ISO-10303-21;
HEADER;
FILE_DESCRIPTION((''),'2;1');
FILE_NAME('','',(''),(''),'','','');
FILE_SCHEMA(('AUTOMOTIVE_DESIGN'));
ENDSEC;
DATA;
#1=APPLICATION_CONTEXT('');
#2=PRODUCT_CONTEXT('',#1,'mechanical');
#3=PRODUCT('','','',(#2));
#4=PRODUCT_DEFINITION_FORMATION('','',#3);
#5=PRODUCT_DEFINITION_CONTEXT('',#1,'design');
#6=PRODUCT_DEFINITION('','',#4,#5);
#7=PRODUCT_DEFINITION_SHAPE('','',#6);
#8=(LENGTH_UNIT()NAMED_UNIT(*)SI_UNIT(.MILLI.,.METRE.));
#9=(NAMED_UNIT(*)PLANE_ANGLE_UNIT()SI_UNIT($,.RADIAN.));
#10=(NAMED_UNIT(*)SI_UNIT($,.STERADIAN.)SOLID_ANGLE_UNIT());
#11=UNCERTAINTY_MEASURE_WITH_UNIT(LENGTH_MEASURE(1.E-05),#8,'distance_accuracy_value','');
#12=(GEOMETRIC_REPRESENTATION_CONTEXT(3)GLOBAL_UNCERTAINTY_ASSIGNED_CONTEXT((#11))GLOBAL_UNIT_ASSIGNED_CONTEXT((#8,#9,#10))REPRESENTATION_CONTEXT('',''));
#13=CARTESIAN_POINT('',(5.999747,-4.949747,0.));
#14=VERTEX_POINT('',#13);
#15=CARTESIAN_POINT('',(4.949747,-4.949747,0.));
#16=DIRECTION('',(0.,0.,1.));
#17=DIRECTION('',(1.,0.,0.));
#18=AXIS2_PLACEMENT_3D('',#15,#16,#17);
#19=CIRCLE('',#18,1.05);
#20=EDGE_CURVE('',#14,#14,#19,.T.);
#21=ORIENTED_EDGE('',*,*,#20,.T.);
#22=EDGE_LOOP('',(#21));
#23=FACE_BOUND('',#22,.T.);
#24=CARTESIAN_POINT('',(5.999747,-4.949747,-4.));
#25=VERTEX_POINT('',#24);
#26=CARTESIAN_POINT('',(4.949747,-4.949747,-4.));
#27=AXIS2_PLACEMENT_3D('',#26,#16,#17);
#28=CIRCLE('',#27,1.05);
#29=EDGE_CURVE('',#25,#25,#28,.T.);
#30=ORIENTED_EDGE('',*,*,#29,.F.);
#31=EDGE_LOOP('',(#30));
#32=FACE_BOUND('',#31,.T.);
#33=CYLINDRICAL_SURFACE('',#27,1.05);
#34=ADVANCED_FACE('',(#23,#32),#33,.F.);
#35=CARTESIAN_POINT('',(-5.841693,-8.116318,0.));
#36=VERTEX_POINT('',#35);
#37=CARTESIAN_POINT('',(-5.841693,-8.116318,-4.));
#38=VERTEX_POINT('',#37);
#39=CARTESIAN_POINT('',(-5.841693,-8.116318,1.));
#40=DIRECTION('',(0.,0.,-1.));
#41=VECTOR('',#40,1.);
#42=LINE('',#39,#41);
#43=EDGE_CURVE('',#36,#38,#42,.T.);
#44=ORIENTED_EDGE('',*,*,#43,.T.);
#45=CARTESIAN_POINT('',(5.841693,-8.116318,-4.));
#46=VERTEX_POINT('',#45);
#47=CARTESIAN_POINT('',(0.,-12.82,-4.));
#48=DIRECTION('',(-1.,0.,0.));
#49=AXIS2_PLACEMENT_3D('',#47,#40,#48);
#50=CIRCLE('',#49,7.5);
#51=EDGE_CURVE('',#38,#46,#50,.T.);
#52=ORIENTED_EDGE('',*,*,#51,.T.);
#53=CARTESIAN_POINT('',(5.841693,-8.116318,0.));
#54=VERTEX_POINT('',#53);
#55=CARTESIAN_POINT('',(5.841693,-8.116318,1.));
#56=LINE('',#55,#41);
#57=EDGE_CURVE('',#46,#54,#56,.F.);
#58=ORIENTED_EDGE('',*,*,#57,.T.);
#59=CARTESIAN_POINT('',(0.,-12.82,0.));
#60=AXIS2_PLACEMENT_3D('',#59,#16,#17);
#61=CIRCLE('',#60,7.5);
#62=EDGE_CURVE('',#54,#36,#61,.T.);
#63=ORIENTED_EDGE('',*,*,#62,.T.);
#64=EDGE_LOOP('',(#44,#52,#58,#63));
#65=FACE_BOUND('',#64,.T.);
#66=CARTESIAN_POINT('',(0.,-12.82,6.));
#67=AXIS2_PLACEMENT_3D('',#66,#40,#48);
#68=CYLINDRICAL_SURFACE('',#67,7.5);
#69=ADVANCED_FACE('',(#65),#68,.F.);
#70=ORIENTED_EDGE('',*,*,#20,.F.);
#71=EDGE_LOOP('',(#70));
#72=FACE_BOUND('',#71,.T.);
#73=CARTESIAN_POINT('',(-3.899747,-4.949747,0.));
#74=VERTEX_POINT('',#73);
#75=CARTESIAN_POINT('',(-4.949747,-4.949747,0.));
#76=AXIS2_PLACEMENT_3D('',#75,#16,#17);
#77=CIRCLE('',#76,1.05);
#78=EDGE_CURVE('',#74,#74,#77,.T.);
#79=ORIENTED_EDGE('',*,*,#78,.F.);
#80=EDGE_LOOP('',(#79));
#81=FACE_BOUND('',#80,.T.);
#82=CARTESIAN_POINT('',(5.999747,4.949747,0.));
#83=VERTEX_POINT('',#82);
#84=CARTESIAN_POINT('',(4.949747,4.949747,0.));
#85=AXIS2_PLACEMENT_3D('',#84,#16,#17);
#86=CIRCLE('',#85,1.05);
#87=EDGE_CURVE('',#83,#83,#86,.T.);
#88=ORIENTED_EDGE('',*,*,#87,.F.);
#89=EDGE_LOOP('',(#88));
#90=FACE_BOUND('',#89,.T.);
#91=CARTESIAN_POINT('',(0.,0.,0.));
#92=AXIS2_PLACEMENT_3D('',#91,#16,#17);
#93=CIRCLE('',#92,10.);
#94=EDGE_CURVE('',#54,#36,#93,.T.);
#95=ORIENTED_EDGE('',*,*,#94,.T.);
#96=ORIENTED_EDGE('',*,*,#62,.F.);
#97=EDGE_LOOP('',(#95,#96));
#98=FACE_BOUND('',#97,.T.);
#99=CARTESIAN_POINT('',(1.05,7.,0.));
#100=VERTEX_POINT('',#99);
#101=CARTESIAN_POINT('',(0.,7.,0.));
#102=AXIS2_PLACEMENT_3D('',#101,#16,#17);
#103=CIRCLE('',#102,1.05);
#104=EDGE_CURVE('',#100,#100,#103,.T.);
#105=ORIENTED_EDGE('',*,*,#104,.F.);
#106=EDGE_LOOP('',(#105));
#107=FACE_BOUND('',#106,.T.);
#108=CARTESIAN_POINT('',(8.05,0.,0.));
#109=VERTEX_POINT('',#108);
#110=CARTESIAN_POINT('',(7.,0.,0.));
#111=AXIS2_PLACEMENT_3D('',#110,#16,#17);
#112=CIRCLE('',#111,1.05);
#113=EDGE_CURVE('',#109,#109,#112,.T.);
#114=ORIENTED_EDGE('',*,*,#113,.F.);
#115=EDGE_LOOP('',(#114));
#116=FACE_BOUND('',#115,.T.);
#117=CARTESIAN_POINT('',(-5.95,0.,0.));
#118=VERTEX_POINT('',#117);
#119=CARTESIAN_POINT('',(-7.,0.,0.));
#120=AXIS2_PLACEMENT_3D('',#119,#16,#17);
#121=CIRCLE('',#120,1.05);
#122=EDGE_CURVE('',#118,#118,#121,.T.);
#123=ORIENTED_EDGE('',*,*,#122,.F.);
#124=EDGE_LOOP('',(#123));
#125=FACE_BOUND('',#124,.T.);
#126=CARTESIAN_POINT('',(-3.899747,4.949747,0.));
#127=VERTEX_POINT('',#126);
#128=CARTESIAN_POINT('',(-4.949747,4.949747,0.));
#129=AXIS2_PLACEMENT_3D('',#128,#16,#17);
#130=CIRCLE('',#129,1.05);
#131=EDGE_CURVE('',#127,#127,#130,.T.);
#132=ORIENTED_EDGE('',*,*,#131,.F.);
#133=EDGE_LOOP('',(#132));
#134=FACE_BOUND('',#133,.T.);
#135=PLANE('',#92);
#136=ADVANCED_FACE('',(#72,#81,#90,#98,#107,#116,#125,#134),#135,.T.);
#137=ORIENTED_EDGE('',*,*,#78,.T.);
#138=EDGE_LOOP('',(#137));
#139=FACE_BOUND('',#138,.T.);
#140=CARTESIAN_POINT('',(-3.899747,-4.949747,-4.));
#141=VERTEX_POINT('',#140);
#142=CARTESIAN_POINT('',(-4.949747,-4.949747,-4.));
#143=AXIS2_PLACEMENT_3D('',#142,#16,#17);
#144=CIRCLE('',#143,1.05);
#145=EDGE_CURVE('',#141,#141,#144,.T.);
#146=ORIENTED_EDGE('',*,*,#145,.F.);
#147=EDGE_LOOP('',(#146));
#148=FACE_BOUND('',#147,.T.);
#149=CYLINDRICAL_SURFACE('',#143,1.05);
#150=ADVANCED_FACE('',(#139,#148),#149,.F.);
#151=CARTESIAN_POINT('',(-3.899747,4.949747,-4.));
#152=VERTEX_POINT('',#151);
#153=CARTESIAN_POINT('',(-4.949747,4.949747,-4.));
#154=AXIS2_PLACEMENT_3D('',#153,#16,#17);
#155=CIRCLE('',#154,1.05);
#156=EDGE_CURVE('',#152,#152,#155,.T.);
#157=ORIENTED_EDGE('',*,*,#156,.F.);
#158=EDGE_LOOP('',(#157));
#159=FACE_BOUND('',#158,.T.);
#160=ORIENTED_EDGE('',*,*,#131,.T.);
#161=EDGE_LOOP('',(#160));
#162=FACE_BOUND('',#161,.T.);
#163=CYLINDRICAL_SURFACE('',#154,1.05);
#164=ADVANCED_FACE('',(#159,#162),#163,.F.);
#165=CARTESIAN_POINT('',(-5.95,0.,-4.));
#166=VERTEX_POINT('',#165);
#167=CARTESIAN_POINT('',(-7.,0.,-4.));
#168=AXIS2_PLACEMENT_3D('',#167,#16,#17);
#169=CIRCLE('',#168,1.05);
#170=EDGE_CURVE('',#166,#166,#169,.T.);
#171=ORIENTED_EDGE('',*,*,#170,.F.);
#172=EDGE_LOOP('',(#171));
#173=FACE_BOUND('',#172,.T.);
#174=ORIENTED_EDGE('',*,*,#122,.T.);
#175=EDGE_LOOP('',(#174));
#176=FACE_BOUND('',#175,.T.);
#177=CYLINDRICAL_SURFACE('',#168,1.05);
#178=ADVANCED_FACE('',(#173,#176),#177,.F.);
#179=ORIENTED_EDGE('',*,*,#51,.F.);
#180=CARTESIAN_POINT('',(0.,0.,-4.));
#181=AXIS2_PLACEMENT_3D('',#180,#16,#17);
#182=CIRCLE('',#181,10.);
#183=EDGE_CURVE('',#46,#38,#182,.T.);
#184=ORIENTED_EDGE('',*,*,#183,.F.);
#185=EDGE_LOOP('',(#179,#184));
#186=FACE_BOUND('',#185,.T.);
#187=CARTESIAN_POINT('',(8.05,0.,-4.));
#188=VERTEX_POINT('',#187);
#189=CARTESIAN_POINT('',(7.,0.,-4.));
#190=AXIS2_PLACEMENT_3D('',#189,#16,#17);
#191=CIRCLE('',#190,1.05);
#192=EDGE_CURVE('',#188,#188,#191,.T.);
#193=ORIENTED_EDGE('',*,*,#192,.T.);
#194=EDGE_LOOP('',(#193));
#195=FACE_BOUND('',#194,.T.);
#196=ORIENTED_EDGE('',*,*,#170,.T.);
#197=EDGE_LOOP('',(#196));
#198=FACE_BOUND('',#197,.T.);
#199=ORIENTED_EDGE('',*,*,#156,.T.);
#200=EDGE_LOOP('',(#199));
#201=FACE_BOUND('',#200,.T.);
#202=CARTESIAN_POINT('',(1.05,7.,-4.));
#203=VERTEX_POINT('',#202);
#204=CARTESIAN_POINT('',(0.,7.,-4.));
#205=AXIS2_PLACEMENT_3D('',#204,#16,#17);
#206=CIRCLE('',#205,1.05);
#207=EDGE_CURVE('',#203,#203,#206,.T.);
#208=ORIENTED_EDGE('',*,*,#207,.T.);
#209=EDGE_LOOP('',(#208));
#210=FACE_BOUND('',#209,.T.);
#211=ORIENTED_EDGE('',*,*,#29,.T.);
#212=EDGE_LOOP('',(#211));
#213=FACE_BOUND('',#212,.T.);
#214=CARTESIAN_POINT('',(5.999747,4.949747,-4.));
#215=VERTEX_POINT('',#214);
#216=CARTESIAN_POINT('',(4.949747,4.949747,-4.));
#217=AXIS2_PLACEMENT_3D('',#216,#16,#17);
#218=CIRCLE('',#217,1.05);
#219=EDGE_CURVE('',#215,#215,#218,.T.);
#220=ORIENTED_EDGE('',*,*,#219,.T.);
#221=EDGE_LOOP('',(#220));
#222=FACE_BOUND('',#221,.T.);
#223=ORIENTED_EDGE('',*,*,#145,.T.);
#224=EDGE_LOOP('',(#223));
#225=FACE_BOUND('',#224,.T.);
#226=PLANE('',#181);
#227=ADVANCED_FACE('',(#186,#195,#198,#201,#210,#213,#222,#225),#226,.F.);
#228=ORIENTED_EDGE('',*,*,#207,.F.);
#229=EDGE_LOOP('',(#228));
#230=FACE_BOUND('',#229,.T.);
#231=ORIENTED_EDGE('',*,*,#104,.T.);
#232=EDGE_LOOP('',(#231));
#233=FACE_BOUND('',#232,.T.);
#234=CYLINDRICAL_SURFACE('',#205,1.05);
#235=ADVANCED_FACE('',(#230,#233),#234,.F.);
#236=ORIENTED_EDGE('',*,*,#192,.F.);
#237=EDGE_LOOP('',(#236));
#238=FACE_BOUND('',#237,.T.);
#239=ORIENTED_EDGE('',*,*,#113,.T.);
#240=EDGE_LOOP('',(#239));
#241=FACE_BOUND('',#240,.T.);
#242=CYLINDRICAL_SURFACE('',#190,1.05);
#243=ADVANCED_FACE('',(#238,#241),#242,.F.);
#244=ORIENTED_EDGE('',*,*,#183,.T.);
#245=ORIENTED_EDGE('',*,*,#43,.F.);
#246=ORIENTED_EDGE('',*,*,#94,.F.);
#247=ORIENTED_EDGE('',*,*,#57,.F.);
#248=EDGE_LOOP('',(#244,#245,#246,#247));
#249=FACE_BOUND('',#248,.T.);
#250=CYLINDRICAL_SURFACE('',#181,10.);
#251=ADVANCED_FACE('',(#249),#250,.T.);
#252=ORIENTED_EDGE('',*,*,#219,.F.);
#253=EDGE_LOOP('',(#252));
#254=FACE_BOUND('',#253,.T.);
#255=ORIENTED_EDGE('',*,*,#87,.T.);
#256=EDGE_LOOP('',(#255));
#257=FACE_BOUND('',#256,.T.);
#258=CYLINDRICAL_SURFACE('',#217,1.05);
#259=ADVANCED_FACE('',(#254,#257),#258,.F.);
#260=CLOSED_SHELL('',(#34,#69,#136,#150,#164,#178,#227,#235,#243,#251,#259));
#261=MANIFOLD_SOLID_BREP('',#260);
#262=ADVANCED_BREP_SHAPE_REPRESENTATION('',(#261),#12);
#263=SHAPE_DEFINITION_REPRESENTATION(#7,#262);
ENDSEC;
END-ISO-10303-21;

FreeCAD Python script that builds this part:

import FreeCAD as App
import Part
import Sketcher
from FreeCAD import Vector

doc = App.newDocument("Part")
body = doc.addObject("PartDesign::Body", "Body")

# Sketch on XY plane
sketch1 = body.newObject("Sketcher::SketchObject", "Sketch")
sketch1.AttachmentSupport = (doc.getObject("XY_Plane"), [""])
sketch1.MapMode = "FlatFace"
sketch1.addGeometry([
    Part.Circle(Vector(0, 0, 0), Vector(0, 0, 1), 10),  # 0
    Part.Circle(Vector(-4.9, -4.9, 0), Vector(0, 0, 1), 1.1),  # 1
    Part.Circle(Vector(0, -7, 0), Vector(0, 0, 1), 1.1),  # 2
    Part.Circle(Vector(4.9, -4.9, 0), Vector(0, 0, 1), 1.1),  # 3
    Part.Circle(Vector(-7, 0, 0), Vector(0, 0, 1), 1.1),  # 4
    Part.Circle(Vector(0, 0, 0), Vector(0, 0, 1), 4),  # 5
    Part.Circle(Vector(-4.9, 4.9, 0), Vector(0, 0, 1), 1.1),  # 6
    Part.Circle(Vector(0, 7, 0), Vector(0, 0, 1), 1.1),  # 7
    Part.Circle(Vector(7, 0, 0), Vector(0, 0, 1), 1.1),  # 8
    Part.Circle(Vector(4.9, 4.9, 0), Vector(0, 0, 1), 1.1),  # 9
], False)
sketch1.addConstraint([
    Sketcher.Constraint("Coincident", 0, 3, -1, 1),
    Sketcher.Constraint("Coincident", 5, 3, -1, 1),
    Sketcher.Constraint("Equal", 1, 2),
    Sketcher.Constraint("Equal", 2, 3),
    Sketcher.Constraint("Equal", 3, 4),
    Sketcher.Constraint("Equal", 4, 6),
    Sketcher.Constraint("Equal", 6, 7),
    Sketcher.Constraint("Equal", 7, 8),
    Sketcher.Constraint("Equal", 8, 9),
    Sketcher.Constraint("Symmetric", 3, 3, 6, 3, -1, 1),
    Sketcher.Constraint("Symmetric", 2, 3, 7, 3, -1, 1),
    Sketcher.Constraint("Symmetric", 4, 3, 8, 3, -1, 1),
    Sketcher.Constraint("Symmetric", 1, 3, 9, 3, -1, 1),
    Sketcher.Constraint("Symmetric", 1, 3, 3, 3, -2),
    Sketcher.Constraint("PointOnObject", 2, 3, -2),
    Sketcher.Constraint("PointOnObject", 4, 3, -1),
    Sketcher.Constraint("Diameter", 0, 20.0),
    Sketcher.Constraint("Diameter", 5, 8.0),
    Sketcher.Constraint("Diameter", 1, 2.1),
    Sketcher.Constraint("DistanceY", 2, 3, -1, 1, 7.0),
    Sketcher.Constraint("DistanceX", 4, 3, -1, 1, 7.0),
    Sketcher.Constraint("DistanceX", 1, 3, -1, 1, 4.949747),
    Sketcher.Constraint("DistanceY", 1, 3, -1, 1, 4.949747),
])
pad1 = body.newObject("PartDesign::Pad", "Pad")
pad1.Profile = sketch1
pad1.Length = 4
pad1.Reversed = True

# Sketch on XY plane
sketch2 = body.newObject("Sketcher::SketchObject", "Sketch001")
sketch2.AttachmentSupport = (doc.getObject("XY_Plane"), [""])
sketch2.MapMode = "FlatFace"
sketch2.AttachmentOffset = App.Placement(Vector(0, 0, -4), App.Rotation())
sketch2.addGeometry(Part.Circle(Vector(0, -13, 0), Vector(0, 0, 1), 8), False)
sketch2.addConstraint([
    Sketcher.Constraint("PointOnObject", 0, 3, -2),
    Sketcher.Constraint("Diameter", 0, 15.0),
    Sketcher.Constraint("DistanceY", 0, 3, -1, 1, 12.82),
])
pocket1 = body.newObject("PartDesign::Pocket", "Pocket")
pocket1.Profile = sketch2
pocket1.Length = 10
pocket1.Reversed = True

# Sketch on XY plane
sketch3 = body.newObject("Sketcher::SketchObject", "Sketch002")
sketch3.AttachmentSupport = (doc.getObject("XY_Plane"), [""])
sketch3.MapMode = "FlatFace"
sketch3.addGeometry(Part.Circle(Vector(0, 0, 0), Vector(0, 0, 1), 4), False)
sketch3.addConstraint([
    Sketcher.Constraint("Coincident", 0, 3, -1, 1),
    Sketcher.Constraint("Diameter", 0, 8.0),
])
pad2 = body.newObject("PartDesign::Pad", "Pad001")
pad2.Profile = sketch3
pad2.Length = 4
pad2.Reversed = True

doc.recompute()
